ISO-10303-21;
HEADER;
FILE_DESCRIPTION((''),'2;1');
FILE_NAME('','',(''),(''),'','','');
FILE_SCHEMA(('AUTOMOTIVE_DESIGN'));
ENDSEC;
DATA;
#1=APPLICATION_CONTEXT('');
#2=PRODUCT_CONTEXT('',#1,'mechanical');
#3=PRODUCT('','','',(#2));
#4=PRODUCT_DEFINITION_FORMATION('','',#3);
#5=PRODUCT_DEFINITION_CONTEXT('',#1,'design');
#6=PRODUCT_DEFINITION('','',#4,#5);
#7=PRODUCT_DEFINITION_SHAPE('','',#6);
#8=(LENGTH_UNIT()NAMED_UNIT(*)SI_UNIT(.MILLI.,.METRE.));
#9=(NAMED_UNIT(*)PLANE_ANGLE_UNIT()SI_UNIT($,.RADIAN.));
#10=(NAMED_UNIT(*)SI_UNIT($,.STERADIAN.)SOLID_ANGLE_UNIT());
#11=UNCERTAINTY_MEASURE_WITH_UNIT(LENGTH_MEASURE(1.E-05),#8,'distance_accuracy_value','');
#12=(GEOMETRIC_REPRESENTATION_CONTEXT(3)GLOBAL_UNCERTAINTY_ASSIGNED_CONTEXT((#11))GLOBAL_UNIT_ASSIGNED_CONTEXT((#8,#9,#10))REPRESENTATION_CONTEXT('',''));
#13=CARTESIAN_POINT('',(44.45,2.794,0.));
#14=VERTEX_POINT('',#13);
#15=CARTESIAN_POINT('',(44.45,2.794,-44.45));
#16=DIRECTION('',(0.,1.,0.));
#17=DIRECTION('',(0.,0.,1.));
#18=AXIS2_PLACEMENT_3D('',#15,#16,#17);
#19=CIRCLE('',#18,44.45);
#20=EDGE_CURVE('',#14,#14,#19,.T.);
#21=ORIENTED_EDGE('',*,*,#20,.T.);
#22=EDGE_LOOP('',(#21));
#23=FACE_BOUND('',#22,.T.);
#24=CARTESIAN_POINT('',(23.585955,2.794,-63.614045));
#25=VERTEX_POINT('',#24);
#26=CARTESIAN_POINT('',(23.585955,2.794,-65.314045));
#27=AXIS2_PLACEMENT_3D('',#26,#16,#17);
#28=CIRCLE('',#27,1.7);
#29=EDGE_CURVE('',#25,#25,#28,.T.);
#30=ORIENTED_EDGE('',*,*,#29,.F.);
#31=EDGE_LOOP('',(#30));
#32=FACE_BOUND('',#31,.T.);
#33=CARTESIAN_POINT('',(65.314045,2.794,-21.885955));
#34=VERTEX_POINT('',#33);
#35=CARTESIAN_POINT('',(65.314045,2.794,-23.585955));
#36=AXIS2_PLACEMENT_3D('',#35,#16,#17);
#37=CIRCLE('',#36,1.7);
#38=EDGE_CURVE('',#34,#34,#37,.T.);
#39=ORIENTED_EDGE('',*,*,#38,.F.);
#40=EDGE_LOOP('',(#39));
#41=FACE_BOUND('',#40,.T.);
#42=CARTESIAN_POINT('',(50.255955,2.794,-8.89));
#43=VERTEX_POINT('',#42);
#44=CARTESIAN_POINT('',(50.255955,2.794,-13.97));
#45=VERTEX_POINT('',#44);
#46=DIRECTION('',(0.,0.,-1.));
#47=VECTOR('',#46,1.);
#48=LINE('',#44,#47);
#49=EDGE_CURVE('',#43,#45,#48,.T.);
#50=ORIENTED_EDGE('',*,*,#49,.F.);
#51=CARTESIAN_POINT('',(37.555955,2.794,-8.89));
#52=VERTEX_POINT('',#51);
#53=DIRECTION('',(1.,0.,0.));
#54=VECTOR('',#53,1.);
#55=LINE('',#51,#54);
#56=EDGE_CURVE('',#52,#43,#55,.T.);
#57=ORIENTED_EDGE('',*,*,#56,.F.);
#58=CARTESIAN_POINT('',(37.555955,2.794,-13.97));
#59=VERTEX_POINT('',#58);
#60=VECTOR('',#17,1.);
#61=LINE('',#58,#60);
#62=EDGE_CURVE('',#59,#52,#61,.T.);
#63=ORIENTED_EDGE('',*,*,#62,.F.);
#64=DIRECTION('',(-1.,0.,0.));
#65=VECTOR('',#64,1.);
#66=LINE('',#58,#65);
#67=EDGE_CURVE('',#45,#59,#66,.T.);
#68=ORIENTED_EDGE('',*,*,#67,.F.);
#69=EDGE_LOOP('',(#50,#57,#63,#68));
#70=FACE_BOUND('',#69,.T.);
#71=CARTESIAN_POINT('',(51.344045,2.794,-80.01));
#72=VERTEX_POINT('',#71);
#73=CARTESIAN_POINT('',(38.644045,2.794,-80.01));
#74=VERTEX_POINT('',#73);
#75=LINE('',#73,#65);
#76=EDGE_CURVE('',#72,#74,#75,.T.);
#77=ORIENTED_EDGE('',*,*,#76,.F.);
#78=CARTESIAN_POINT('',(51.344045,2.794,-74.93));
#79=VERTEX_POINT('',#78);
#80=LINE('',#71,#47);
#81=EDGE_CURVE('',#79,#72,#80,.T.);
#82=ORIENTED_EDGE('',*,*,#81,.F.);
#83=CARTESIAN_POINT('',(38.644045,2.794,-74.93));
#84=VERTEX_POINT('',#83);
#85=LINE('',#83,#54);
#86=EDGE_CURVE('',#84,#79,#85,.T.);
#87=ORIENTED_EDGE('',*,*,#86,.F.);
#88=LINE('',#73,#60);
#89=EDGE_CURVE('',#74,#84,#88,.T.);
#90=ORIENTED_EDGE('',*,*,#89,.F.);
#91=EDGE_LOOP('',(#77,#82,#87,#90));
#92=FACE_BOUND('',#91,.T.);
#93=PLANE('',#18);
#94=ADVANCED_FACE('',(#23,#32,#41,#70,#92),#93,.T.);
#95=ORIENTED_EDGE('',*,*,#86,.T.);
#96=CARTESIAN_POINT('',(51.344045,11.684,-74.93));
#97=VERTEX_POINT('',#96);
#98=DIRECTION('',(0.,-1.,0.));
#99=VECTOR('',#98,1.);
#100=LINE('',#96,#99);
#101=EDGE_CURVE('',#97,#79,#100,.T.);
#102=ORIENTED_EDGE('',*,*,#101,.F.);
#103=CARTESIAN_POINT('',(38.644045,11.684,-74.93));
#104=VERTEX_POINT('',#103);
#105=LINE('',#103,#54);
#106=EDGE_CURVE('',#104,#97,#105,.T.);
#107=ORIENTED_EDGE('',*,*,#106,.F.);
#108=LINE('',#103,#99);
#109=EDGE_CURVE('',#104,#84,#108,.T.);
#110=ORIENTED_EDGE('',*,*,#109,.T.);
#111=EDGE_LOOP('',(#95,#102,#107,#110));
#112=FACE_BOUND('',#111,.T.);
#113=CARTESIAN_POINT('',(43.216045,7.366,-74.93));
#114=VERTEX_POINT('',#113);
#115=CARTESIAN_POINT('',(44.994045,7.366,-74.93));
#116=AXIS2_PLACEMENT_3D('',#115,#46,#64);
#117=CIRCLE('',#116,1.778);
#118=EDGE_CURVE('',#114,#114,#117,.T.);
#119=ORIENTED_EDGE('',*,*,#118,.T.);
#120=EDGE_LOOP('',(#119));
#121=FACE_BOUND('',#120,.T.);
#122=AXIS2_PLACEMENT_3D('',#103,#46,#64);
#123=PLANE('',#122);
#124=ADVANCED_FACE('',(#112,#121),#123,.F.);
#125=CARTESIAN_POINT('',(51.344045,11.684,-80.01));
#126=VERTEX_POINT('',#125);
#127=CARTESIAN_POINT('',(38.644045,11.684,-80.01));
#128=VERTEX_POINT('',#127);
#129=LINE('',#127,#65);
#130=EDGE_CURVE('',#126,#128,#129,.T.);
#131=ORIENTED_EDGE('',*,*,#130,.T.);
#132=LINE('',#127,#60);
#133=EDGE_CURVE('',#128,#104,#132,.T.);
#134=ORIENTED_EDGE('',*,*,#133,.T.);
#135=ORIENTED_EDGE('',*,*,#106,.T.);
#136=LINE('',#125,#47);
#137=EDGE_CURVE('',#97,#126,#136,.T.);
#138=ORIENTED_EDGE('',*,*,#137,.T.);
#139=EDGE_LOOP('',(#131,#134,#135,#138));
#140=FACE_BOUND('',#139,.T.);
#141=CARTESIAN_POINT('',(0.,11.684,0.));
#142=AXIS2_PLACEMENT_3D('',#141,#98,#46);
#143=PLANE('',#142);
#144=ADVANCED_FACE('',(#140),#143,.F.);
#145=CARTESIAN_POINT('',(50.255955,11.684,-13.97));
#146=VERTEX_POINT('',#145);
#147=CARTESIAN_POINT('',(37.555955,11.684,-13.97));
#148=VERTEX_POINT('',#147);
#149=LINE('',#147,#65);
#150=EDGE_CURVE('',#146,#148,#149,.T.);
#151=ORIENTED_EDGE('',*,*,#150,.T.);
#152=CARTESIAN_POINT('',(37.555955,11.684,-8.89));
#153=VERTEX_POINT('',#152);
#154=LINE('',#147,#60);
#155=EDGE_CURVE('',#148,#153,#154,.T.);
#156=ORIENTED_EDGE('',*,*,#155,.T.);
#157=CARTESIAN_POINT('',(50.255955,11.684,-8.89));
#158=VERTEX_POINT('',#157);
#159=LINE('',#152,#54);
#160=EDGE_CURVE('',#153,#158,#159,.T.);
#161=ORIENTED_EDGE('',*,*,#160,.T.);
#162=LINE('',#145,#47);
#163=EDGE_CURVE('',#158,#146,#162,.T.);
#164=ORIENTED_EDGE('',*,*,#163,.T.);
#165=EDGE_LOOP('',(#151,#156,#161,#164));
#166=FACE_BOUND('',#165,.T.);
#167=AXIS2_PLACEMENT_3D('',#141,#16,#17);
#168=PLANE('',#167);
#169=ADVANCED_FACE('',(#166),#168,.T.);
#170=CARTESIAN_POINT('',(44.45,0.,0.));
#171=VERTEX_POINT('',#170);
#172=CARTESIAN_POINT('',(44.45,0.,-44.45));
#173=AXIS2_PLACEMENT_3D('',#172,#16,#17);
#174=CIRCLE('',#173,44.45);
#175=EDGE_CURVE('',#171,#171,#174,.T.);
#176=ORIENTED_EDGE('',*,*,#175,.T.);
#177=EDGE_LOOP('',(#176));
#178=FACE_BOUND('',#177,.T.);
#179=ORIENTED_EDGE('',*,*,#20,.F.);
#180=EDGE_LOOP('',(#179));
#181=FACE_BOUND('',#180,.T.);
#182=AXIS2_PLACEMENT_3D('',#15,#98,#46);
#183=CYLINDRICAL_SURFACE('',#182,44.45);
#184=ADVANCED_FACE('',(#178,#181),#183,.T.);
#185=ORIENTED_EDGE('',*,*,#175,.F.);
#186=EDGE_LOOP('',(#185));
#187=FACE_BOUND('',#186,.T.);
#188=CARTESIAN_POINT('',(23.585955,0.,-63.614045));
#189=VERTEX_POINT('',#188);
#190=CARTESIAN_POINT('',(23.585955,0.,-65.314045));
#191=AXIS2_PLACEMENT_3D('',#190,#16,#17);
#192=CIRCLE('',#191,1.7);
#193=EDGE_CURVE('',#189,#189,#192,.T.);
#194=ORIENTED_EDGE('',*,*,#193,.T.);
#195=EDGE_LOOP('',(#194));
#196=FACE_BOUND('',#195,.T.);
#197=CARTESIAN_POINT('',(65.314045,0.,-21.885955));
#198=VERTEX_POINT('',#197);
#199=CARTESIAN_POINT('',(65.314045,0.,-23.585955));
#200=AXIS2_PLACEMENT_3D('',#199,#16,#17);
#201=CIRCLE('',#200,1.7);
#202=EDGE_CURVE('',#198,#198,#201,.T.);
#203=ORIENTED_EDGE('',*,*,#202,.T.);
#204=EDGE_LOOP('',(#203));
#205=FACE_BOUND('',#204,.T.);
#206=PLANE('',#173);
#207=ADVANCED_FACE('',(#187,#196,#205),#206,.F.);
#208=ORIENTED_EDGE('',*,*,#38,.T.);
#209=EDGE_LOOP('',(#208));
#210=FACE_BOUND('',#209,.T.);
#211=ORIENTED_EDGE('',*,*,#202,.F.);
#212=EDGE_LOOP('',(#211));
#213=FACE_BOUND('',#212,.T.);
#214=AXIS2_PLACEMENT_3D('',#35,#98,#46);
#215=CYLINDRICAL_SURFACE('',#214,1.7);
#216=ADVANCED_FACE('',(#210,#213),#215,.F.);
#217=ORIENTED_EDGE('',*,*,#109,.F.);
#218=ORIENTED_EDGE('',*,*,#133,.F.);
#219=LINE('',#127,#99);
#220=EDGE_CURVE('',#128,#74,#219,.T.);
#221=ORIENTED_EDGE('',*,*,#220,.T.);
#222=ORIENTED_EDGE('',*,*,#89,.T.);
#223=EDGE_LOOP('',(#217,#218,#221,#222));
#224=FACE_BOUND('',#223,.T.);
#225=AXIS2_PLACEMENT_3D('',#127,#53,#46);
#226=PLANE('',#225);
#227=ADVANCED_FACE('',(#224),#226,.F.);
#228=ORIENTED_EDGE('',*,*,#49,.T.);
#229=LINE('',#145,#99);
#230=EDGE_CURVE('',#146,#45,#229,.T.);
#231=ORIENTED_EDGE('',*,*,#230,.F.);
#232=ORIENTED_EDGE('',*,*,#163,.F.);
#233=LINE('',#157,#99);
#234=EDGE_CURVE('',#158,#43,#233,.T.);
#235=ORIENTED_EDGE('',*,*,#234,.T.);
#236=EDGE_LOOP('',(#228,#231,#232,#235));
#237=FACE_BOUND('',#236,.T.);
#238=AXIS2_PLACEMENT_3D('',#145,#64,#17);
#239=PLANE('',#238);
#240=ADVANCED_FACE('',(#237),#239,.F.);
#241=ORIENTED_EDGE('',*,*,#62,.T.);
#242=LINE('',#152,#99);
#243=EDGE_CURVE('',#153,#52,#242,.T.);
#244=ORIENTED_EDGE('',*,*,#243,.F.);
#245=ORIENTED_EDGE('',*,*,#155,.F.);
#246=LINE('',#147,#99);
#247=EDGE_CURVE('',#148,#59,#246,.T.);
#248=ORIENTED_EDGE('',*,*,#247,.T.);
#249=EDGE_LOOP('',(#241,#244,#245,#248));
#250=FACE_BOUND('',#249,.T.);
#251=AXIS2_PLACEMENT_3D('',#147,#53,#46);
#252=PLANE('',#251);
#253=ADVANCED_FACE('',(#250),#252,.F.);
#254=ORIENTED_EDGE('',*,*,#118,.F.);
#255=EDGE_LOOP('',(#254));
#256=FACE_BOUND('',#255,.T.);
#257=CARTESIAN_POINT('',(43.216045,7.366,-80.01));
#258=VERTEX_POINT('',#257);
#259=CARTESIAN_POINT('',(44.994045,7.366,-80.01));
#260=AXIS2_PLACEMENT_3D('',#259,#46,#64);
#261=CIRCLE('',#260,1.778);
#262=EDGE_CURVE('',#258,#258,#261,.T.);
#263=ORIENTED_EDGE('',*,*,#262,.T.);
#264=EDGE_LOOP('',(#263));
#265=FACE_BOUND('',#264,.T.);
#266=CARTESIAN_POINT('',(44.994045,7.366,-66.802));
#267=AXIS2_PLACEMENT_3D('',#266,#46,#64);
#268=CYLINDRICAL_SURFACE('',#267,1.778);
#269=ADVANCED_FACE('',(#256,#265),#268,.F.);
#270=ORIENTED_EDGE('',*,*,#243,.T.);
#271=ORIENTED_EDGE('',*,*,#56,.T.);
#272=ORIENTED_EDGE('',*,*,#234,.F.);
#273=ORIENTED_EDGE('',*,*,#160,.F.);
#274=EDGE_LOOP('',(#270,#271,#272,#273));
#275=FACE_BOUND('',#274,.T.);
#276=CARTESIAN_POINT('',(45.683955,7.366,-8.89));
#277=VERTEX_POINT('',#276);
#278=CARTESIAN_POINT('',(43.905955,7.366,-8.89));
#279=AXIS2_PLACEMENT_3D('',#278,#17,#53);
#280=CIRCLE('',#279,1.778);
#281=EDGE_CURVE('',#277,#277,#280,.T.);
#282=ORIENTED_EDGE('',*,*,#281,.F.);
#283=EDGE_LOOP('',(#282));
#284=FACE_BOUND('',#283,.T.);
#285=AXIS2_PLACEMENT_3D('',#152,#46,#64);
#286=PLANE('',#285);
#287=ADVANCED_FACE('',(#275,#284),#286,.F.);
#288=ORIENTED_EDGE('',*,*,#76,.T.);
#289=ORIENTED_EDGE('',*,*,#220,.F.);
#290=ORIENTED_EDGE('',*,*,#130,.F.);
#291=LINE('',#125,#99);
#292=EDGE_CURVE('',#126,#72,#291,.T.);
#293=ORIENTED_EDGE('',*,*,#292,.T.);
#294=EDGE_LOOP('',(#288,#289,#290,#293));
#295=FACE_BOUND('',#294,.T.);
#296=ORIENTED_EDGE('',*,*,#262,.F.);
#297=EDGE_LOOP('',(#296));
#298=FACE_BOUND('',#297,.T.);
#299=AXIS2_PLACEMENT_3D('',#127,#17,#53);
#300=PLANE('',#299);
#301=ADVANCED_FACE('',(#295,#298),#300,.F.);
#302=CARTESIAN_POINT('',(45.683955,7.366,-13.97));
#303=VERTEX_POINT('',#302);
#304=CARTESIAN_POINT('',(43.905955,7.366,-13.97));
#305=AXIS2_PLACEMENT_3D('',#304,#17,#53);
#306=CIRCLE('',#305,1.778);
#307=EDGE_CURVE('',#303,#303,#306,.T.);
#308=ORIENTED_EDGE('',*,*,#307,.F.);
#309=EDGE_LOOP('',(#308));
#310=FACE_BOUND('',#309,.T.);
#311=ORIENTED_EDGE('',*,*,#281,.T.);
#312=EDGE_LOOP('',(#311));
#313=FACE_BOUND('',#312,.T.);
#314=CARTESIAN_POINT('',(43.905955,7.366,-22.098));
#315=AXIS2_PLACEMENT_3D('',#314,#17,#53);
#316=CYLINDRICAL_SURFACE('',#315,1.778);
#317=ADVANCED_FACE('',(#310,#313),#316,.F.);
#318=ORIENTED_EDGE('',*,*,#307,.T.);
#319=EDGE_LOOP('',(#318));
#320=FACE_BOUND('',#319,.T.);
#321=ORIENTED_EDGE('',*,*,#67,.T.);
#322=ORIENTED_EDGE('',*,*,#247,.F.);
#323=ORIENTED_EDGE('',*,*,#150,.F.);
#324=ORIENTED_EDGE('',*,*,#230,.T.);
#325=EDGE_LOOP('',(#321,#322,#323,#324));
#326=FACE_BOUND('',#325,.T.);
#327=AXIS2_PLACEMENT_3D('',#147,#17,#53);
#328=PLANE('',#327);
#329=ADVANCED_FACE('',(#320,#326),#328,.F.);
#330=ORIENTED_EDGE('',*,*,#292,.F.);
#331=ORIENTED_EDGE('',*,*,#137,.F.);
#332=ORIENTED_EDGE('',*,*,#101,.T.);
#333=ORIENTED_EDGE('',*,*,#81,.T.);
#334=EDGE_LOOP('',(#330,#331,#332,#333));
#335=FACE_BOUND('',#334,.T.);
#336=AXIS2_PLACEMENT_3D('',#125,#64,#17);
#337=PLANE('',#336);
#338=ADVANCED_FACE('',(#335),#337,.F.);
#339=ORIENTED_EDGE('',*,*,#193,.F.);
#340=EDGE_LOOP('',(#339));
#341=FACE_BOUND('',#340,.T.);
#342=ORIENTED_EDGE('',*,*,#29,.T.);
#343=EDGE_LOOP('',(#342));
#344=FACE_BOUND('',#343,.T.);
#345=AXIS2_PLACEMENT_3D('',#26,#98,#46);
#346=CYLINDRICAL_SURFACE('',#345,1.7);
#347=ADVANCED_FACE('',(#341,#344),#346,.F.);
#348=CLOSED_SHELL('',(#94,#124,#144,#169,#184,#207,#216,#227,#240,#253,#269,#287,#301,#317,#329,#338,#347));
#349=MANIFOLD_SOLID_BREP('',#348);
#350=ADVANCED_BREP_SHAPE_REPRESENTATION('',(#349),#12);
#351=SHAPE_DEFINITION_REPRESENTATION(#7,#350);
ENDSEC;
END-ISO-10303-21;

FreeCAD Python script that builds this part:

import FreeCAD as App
import Part
import Sketcher
Q = App.Units.Quantity

doc = App.newDocument("Part")
params = doc.addObject("Spreadsheet::Sheet", "Params")
for row, (alias, value) in enumerate([
    ("sketch1_diameter", "3.5 in"),
    ("pad1_length", "0.11 in"),
    ("sketch2_width", "0.5 in"),
    ("sketch2_height", "0.2 in"),
    ("pad2_length", "0.35 in"),
    ("sketch3_diameter", "0.14 in"),
    ("pocket1_length", "0.52 in"),
], start=1):
    params.set(f"A{row}", alias)
    params.set(f"B{row}", "=" + value)
    params.setAlias(f"B{row}", alias)

body = doc.addObject("PartDesign::Body", "Body")

sketch1 = doc.addObject("Sketcher::SketchObject", "Sketch")
body.addObject(sketch1)
sketch1.AttachmentSupport = (doc.XZ_Plane, [""])
sketch1.MapMode = "FlatFace"
sketch1.addGeometry([
    Part.Circle(App.Vector(44.45, -44.45, 0), App.Vector(0, 0, 1), 44.45),
    Part.Circle(App.Vector(23.585955, -65.314045, 0), App.Vector(0, 0, 1), 1.7),
    Part.Circle(App.Vector(65.314045, -23.585955, 0), App.Vector(0, 0, 1), 1.7),
], False)
sketch1.addConstraint([
    Sketcher.Constraint("Equal", 1, 2),
    Sketcher.Constraint("Diameter", 0, Q("3.5 in")),
    Sketcher.Constraint("Diameter", 1, Q("3.4 mm")),
    Sketcher.Constraint("DistanceX", -1, 1, 0, 3, Q("1.75 in")),
    Sketcher.Constraint("DistanceY", 0, 3, -1, 1, Q("1.75 in")),
    Sketcher.Constraint("DistanceX", 1, 3, 2, 3, Q("41.72809 mm")),
    Sketcher.Constraint("DistanceY", 1, 3, 2, 3, Q("41.72809 mm")),
    Sketcher.Constraint("DistanceX", -1, 1, 1, 3, Q("23.585955 mm")),
    Sketcher.Constraint("DistanceY", 1, 3, -1, 1, Q("65.314045 mm")),
])
sketch1.setExpression("Constraints[1]", "Params.sketch1_diameter")
pad1 = doc.addObject("PartDesign::Pad", "Pad")
body.addObject(pad1)
pad1.Profile = sketch1
pad1.setExpression("Length", "Params.pad1_length")
pad1.Reversed = True

sketch2 = doc.addObject("Sketcher::SketchObject", "Sketch001")
body.addObject(sketch2)
sketch2.AttachmentSupport = (doc.XZ_Plane, [""])
sketch2.MapMode = "FlatFace"
sketch2.AttachmentOffset = App.Placement(App.Vector(0, 0, -0.11 * 25.4), App.Rotation())
sketch2.addGeometry([
    Part.LineSegment(App.Vector(38.644045, -80.01, 0), App.Vector(38.644045, -74.93, 0)),
    Part.LineSegment(App.Vector(38.644045, -74.93, 0), App.Vector(51.344045, -74.93, 0)),
    Part.LineSegment(App.Vector(51.344045, -74.93, 0), App.Vector(51.344045, -80.01, 0)),
    Part.LineSegment(App.Vector(51.344045, -80.01, 0), App.Vector(38.644045, -80.01, 0)),
    Part.LineSegment(App.Vector(37.555955, -13.97, 0), App.Vector(37.555955, -8.89, 0)),
    Part.LineSegment(App.Vector(37.555955, -8.89, 0), App.Vector(50.255955, -8.89, 0)),
    Part.LineSegment(App.Vector(50.255955, -8.89, 0), App.Vector(50.255955, -13.97, 0)),
    Part.LineSegment(App.Vector(50.255955, -13.97, 0), App.Vector(37.555955, -13.97, 0)),
], False)
sketch2.addConstraint([
    Sketcher.Constraint("Coincident", 0, 2, 1, 1),
    Sketcher.Constraint("Coincident", 1, 2, 2, 1),
    Sketcher.Constraint("Coincident", 2, 2, 3, 1),
    Sketcher.Constraint("Coincident", 3, 2, 0, 1),
    Sketcher.Constraint("Coincident", 4, 2, 5, 1),
    Sketcher.Constraint("Coincident", 5, 2, 6, 1),
    Sketcher.Constraint("Coincident", 6, 2, 7, 1),
    Sketcher.Constraint("Coincident", 7, 2, 4, 1),
    Sketcher.Constraint("Vertical", 0),
    Sketcher.Constraint("Horizontal", 1),
    Sketcher.Constraint("Vertical", 2),
    Sketcher.Constraint("Horizontal", 3),
    Sketcher.Constraint("Vertical", 4),
    Sketcher.Constraint("Horizontal", 5),
    Sketcher.Constraint("Vertical", 6),
    Sketcher.Constraint("Horizontal", 7),
    Sketcher.Constraint("Equal", 3, 5),
    Sketcher.Constraint("Equal", 2, 4),
    Sketcher.Constraint("DistanceX", 1, 1, 1, 2, Q("0.5 in")),
    Sketcher.Constraint("DistanceY", 0, 1, 0, 2, Q("0.2 in")),
    Sketcher.Constraint("DistanceY", 0, 2, 4, 2, Q("2.6 in")),
    Sketcher.Constraint("DistanceY", 0, 2, -1, 1, Q("2.95 in")),
    Sketcher.Constraint("DistanceX", 4, 2, 0, 2, Q("1.08809 mm")),
    Sketcher.Constraint("DistanceX", -1, 1, 0, 2, Q("38.644045 mm")),
])
sketch2.setExpression("Constraints[18]", "Params.sketch2_width")
sketch2.setExpression("Constraints[19]", "Params.sketch2_height")
pad2 = doc.addObject("PartDesign::Pad", "Pad001")
body.addObject(pad2)
pad2.Profile = sketch2
pad2.setExpression("Length", "Params.pad2_length")
pad2.Reversed = True

sketch3 = doc.addObject("Sketcher::SketchObject", "Sketch002")
body.addObject(sketch3)
sketch3.AttachmentSupport = (doc.XY_Plane, [""])
sketch3.MapMode = "FlatFace"
sketch3.AttachmentOffset = App.Placement(App.Vector(0, 0, -0.35 * 25.4), App.Rotation())
sketch3.addGeometry(Part.Circle(App.Vector(43.905955, 7.366, 0), App.Vector(0, 0, 1), 1.778), False)
sketch3.addConstraint([
    Sketcher.Constraint("Diameter", 0, Q("0.14 in")),
    Sketcher.Constraint("DistanceY", -1, 1, 0, 3, Q("0.29 in")),
    Sketcher.Constraint("DistanceX", -1, 1, 0, 3, Q("43.905955 mm")),
])
sketch3.setExpression("Constraints[0]", "Params.sketch3_diameter")
pocket1 = doc.addObject("PartDesign::Pocket", "Pocket")
body.addObject(pocket1)
pocket1.Profile = sketch3
pocket1.setExpression("Length", "Params.pocket1_length")
doc.recompute()

datumline = doc.addObject("PartDesign::Line", "DatumLine")
body.addObject(datumline)
datumline.Placement = App.Placement(App.Vector(44.45, 0, -44.45), App.Rotation(App.Vector(0, 0, 1), App.Vector(0, 1, 0)))
polarpattern = doc.addObject("PartDesign::PolarPattern", "PolarPattern")
body.addObject(polarpattern)
polarpattern.Originals = [pocket1]
polarpattern.Axis = (datumline, [""])
polarpattern.Angle = 360
polarpattern.Occurrences = 2
body.Tip = polarpattern

doc.recompute()
